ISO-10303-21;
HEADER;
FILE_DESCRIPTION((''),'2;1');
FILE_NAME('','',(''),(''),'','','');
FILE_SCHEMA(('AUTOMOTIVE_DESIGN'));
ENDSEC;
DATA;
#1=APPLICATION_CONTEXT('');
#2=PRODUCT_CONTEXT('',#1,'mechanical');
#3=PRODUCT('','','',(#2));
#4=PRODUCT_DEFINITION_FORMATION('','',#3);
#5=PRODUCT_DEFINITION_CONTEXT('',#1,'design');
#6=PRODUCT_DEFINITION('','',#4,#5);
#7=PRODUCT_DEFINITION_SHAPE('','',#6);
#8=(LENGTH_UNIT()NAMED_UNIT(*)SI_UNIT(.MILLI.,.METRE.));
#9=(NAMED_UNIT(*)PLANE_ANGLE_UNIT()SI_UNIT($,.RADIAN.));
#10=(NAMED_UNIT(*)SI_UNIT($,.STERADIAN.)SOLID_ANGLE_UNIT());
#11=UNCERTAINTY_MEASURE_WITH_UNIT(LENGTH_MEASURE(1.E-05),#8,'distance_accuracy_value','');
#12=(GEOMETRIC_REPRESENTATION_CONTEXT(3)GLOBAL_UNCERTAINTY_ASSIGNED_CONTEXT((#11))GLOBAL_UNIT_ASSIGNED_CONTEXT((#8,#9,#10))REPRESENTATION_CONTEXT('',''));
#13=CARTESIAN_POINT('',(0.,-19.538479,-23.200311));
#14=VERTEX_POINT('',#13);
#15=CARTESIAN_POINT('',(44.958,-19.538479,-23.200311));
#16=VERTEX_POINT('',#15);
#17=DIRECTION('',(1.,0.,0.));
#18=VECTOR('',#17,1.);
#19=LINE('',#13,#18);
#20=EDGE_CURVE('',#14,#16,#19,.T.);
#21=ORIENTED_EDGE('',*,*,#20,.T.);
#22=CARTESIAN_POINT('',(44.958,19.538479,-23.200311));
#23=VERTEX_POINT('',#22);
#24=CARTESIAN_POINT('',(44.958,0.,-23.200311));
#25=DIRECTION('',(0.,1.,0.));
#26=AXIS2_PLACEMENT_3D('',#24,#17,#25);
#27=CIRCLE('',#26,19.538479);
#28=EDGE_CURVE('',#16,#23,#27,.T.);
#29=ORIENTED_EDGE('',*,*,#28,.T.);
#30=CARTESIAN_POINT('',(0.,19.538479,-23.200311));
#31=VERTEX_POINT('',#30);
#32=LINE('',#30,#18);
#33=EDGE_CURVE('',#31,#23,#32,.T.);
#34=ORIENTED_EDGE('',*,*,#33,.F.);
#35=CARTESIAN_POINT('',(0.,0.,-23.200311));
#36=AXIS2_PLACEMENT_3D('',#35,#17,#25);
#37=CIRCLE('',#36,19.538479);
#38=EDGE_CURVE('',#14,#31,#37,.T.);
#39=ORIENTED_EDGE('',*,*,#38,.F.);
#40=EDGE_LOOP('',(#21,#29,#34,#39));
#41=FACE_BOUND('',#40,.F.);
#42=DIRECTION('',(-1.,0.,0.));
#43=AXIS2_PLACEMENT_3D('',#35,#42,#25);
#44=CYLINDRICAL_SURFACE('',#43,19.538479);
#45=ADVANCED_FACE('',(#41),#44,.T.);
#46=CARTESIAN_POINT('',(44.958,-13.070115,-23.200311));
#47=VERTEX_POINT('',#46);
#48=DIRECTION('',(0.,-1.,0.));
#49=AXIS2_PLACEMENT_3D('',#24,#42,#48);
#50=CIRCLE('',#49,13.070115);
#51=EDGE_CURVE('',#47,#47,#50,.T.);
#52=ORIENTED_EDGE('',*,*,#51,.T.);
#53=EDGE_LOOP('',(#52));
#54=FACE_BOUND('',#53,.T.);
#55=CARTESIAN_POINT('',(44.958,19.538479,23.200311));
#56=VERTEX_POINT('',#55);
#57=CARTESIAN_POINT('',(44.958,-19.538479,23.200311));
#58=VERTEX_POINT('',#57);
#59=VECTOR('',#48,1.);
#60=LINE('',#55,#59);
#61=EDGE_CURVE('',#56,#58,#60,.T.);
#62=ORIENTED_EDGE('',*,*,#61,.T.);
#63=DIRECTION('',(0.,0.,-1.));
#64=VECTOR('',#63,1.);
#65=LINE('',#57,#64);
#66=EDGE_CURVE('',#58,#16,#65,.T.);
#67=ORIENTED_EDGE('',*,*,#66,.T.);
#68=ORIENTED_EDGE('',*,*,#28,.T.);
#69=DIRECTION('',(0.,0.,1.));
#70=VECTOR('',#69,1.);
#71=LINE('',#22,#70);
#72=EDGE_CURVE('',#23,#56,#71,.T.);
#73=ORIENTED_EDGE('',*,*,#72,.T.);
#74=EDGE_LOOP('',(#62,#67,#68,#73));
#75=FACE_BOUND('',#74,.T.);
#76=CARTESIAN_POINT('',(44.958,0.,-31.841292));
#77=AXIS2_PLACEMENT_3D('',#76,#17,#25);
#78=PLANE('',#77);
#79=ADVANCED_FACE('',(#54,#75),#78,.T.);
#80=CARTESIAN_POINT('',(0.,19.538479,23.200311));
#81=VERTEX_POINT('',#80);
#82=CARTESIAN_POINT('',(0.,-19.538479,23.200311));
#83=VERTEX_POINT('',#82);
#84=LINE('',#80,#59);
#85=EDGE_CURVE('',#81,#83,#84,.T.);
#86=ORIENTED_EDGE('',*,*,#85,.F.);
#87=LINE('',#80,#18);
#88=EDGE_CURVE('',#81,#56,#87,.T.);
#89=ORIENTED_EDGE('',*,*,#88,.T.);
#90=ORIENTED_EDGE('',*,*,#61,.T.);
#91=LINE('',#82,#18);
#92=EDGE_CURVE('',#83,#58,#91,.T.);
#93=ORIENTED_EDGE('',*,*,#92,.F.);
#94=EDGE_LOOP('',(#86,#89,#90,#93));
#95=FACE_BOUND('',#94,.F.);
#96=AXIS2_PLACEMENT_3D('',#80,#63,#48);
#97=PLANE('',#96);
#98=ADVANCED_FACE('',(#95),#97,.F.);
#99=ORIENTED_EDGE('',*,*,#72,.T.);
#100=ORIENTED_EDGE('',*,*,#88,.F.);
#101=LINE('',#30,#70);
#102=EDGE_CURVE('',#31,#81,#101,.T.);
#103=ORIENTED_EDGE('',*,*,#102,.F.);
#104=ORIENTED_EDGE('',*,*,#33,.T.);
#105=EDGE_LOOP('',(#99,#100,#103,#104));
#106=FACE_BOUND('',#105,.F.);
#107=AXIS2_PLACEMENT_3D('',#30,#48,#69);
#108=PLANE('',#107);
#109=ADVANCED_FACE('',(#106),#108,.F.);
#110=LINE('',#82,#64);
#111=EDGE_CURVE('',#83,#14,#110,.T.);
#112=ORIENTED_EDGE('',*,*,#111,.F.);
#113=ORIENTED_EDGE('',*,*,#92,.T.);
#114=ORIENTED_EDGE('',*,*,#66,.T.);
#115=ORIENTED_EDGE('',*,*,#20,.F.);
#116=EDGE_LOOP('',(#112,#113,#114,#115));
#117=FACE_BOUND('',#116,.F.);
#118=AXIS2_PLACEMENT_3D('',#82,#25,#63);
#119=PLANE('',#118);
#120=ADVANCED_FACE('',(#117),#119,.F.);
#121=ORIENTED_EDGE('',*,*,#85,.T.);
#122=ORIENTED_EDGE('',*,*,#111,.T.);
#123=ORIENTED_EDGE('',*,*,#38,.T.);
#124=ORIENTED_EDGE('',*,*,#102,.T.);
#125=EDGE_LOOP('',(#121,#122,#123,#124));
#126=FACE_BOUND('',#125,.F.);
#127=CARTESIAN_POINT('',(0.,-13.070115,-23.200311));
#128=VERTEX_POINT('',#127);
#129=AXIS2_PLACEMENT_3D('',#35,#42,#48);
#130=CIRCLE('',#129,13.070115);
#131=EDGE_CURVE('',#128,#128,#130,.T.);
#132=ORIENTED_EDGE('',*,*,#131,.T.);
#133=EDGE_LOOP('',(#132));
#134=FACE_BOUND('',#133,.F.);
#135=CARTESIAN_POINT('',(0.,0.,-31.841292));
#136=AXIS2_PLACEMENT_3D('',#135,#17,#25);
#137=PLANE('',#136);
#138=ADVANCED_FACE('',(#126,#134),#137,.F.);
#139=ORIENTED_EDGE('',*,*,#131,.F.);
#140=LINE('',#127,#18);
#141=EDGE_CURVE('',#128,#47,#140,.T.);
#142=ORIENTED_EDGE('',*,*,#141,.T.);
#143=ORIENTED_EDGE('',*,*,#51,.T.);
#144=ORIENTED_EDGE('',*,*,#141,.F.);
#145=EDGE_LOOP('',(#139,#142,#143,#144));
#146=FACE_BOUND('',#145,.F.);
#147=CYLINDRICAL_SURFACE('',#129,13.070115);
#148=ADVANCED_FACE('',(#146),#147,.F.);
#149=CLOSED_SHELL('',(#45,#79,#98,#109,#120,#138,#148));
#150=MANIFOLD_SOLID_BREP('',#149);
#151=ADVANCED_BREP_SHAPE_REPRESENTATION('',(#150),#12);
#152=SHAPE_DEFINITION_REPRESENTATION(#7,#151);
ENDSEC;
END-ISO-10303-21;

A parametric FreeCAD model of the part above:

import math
import FreeCAD as App
import Part
import Sketcher
Q = App.Units.Quantity

doc = App.newDocument("Part")
body = doc.addObject("PartDesign::Body", "Body")

# Sketch on YZ plane
sketch1 = body.newObject("Sketcher::SketchObject", "Sketch")
sketch1.AttachmentSupport = (doc.getObject("YZ_Plane"), [""])
sketch1.MapMode = "FlatFace"
sketch1.addGeometry([
    Part.ArcOfCircle(Part.Circle(App.Vector(0, -23, 0), App.Vector(0, 0, 1), 20), math.radians(180), math.radians(360)),  # 0
    Part.LineSegment(App.Vector(20, -23, 0), App.Vector(20, 23, 0)),  # 1
    Part.LineSegment(App.Vector(20, 23, 0), App.Vector(-20, 23, 0)),  # 2
    Part.LineSegment(App.Vector(-20, 23, 0), App.Vector(-20, -23, 0)),  # 3
    Part.Circle(App.Vector(0, -23, 0), App.Vector(0, 0, 1), 13),  # 4
], False)
sketch1.addConstraint([
    Sketcher.Constraint("Tangent", 0, 2, 1, 1),
    Sketcher.Constraint("Coincident", 1, 2, 2, 1),
    Sketcher.Constraint("Coincident", 2, 2, 3, 1),
    Sketcher.Constraint("Tangent", 3, 2, 0, 1),
    Sketcher.Constraint("Vertical", 1),
    Sketcher.Constraint("Horizontal", 2),
    Sketcher.Constraint("Vertical", 3),
    Sketcher.Constraint("Coincident", 4, 3, 0, 3),
    Sketcher.Constraint("Symmetric", 0, 2, 2, 2, -1, 1),
    Sketcher.Constraint("Diameter", 4, 26.14023),
    Sketcher.Constraint("Radius", 0, 19.538479),
    Sketcher.Constraint("DistanceY", 1, 1, 1, 2, 46.400622),
])
pad1 = body.newObject("PartDesign::Pad", "Pad")
pad1.Profile = sketch1
pad1.Length = Q("1.77 in")

doc.recompute()
